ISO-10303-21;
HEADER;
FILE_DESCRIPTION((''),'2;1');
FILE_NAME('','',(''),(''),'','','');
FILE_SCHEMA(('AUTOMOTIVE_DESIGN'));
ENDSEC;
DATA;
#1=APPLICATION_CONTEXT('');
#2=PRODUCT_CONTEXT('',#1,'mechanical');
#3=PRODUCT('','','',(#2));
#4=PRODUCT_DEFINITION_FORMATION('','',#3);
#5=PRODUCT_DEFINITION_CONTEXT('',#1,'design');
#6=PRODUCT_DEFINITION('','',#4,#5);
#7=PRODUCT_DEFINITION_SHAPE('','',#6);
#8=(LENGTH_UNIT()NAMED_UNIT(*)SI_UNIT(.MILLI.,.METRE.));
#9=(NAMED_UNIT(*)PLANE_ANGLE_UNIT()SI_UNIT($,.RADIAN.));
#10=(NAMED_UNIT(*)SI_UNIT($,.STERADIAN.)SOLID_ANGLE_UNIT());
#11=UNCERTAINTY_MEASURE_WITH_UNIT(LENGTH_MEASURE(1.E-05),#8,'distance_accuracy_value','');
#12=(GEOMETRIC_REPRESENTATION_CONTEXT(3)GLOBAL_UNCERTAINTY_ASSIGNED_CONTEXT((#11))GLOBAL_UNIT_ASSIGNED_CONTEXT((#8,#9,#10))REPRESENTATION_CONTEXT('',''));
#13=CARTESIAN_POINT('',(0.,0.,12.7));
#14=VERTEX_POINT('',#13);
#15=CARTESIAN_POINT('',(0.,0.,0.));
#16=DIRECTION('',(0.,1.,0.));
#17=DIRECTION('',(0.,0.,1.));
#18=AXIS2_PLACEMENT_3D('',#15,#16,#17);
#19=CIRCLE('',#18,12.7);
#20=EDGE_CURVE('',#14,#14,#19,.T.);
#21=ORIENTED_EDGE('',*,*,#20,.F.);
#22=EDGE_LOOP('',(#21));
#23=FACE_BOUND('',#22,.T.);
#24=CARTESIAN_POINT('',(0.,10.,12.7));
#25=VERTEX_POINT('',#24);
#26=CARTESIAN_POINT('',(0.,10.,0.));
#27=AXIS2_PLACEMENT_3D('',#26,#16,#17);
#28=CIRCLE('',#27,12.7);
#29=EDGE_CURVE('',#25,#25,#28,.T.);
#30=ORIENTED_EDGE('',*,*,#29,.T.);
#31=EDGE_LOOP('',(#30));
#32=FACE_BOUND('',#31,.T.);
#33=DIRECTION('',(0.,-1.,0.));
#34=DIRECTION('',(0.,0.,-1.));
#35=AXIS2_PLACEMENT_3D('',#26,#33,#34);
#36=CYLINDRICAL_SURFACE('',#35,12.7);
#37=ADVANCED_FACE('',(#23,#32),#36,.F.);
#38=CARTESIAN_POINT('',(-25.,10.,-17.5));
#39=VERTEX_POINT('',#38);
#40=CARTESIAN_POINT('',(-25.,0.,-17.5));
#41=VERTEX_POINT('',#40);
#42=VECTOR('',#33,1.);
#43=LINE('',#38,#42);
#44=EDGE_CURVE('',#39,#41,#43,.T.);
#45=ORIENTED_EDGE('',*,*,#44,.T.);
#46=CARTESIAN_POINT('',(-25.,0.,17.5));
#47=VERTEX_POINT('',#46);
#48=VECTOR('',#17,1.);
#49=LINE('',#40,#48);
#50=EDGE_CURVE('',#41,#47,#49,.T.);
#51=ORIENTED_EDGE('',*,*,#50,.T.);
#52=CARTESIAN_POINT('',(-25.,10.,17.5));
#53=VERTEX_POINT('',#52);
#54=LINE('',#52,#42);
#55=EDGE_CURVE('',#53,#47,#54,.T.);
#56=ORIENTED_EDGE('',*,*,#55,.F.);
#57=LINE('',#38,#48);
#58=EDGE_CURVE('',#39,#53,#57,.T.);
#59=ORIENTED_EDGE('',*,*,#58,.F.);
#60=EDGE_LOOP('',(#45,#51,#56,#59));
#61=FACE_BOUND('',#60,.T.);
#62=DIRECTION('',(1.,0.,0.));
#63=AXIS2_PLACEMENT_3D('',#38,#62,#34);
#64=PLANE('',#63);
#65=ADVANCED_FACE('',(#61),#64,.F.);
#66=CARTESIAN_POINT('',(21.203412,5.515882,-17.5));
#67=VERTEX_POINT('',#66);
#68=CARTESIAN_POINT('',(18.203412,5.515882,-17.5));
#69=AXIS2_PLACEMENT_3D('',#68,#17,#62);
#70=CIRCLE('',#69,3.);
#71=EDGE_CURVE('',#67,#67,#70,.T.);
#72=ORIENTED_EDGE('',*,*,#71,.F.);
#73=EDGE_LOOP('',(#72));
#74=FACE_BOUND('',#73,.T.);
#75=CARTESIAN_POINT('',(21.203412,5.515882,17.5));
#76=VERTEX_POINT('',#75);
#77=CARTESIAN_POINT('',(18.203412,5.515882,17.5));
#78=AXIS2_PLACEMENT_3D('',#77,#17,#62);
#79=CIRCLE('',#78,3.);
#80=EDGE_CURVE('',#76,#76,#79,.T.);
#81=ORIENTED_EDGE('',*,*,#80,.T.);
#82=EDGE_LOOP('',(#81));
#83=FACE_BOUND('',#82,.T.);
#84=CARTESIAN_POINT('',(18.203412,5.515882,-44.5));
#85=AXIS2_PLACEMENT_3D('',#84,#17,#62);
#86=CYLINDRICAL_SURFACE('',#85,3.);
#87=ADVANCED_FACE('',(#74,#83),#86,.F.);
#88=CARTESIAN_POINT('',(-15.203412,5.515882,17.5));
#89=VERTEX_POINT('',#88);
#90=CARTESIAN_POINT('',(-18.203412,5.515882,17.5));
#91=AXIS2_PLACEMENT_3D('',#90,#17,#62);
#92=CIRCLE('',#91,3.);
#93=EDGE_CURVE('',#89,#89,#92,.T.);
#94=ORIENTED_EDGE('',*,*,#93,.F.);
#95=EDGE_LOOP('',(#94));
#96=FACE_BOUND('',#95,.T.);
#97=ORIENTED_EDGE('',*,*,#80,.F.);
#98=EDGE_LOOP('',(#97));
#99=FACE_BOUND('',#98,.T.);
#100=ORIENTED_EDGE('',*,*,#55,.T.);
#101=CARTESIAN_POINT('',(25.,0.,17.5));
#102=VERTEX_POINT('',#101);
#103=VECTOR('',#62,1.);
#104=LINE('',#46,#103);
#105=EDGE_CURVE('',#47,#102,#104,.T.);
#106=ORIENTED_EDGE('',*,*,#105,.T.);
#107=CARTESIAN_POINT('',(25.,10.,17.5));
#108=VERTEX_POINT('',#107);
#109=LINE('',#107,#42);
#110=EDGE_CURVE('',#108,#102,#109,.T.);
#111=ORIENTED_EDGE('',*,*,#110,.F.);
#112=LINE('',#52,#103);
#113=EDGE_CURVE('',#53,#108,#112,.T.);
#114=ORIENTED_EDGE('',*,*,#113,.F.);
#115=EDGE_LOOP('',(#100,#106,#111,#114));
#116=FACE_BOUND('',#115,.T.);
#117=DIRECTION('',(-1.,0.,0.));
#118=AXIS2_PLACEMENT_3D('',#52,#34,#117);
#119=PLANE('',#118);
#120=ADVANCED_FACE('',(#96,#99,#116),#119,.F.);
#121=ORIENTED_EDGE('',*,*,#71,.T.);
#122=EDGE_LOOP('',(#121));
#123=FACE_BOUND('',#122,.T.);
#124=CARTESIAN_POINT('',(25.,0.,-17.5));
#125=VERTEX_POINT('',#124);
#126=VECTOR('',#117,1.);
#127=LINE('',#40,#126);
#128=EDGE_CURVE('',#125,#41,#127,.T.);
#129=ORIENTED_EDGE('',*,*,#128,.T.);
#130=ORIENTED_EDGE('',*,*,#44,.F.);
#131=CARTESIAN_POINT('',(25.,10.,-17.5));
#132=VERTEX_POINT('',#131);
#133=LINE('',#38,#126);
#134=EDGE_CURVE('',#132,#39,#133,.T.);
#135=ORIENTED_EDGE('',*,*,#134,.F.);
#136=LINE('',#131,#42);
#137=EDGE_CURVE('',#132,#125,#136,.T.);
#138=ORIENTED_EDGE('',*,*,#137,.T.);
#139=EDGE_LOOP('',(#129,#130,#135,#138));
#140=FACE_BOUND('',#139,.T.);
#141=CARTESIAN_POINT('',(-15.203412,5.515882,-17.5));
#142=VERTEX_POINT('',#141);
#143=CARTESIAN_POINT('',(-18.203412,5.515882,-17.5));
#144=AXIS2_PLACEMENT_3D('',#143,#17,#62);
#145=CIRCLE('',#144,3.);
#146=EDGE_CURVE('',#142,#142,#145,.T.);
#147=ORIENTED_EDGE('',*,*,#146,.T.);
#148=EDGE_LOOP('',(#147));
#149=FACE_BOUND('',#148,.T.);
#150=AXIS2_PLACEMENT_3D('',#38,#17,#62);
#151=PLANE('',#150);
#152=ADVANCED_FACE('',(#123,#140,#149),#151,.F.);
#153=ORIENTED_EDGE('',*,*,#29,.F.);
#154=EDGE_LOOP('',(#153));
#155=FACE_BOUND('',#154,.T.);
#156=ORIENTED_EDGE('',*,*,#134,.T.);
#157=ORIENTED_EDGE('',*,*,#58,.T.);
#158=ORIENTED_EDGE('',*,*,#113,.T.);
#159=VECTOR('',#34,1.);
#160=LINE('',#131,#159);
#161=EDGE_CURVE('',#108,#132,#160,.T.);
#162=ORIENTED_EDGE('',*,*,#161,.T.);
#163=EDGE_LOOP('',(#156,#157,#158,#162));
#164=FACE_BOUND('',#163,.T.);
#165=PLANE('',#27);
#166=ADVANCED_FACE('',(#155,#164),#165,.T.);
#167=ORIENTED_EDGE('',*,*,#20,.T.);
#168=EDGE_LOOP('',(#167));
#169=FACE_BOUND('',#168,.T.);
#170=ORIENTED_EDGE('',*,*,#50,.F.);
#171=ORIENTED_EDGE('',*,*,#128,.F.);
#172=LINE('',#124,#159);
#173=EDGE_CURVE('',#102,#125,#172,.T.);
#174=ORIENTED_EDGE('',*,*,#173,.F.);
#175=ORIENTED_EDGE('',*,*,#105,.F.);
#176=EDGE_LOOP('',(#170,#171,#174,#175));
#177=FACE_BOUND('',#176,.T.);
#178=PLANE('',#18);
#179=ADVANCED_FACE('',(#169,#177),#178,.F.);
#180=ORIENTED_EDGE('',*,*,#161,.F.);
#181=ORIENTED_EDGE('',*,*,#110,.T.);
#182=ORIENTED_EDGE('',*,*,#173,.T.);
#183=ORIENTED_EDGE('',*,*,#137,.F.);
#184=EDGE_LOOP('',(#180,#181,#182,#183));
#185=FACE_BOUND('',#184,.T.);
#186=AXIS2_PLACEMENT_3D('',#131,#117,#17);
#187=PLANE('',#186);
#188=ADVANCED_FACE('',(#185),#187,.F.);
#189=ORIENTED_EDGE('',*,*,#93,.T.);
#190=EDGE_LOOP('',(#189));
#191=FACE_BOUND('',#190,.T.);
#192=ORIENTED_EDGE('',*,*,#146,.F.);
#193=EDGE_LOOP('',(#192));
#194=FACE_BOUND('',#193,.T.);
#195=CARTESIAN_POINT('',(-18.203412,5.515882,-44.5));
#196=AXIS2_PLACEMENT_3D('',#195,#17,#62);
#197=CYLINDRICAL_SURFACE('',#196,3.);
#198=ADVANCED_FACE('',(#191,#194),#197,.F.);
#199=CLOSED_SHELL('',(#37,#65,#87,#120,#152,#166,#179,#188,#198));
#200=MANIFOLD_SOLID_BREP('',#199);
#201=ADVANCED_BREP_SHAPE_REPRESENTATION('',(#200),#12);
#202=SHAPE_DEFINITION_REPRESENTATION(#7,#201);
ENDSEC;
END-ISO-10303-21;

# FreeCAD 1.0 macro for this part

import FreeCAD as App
import Part
import Sketcher

doc = App.newDocument("Part")
body = doc.addObject("PartDesign::Body", "Body")

# Sketch on XZ plane
sketch1 = body.newObject("Sketcher::SketchObject", "Sketch")
sketch1.AttachmentSupport = (doc.getObject("XZ_Plane"), [""])
sketch1.MapMode = "FlatFace"
sketch1.addGeometry([
    Part.LineSegment(App.Vector(-25, -17.5, 0), App.Vector(-25, 17.5, 0)),  # 0
    Part.LineSegment(App.Vector(-25, 17.5, 0), App.Vector(25, 17.5, 0)),  # 1
    Part.LineSegment(App.Vector(25, 17.5, 0), App.Vector(25, -17.5, 0)),  # 2
    Part.LineSegment(App.Vector(25, -17.5, 0), App.Vector(-25, -17.5, 0)),  # 3
    Part.Circle(App.Vector(0, 0, 0), App.Vector(0, 0, 1), 12.7),  # 4
], False)
sketch1.addConstraint([
    Sketcher.Constraint("Coincident", 0, 2, 1, 1),
    Sketcher.Constraint("Coincident", 1, 2, 2, 1),
    Sketcher.Constraint("Coincident", 2, 2, 3, 1),
    Sketcher.Constraint("Coincident", 3, 2, 0, 1),
    Sketcher.Constraint("Vertical", 0),
    Sketcher.Constraint("Horizontal", 1),
    Sketcher.Constraint("Vertical", 2),
    Sketcher.Constraint("Horizontal", 3),
    Sketcher.Constraint("Coincident", 4, 3, -1, 1),
    Sketcher.Constraint("Symmetric", 0, 2, 2, 2, -1, 1),
    Sketcher.Constraint("Diameter", 4, 25.4),
    Sketcher.Constraint("DistanceX", 1, 1, 1, 2, 50.0),
    Sketcher.Constraint("DistanceY", 0, 1, 0, 2, 35.0),
])
pad1 = body.newObject("PartDesign::Pad", "Pad")
pad1.Profile = sketch1
pad1.Length = 10
pad1.Reversed = True

# Sketch on XY plane
sketch2 = body.newObject("Sketcher::SketchObject", "Sketch001")
sketch2.AttachmentSupport = (doc.getObject("XY_Plane"), [""])
sketch2.MapMode = "FlatFace"
sketch2.AttachmentOffset = App.Placement(App.Vector(0, 0, 17.5), App.Rotation())
sketch2.addGeometry([
    Part.Circle(App.Vector(-18.203412, 5.515882, 0), App.Vector(0, 0, 1), 3),
    Part.Circle(App.Vector(18.203412, 5.515882, 0), App.Vector(0, 0, 1), 3),
], False)
sketch2.addConstraint([
    Sketcher.Constraint("Equal", 0, 1),
    Sketcher.Constraint("Symmetric", 0, 3, 1, 3, -2),
    Sketcher.Constraint("Diameter", 0, 6.0),
    Sketcher.Constraint("DistanceX", 0, 3, -1, 1, 18.203412),
    Sketcher.Constraint("DistanceY", -1, 1, 0, 3, 5.515882),
])
pocket1 = body.newObject("PartDesign::Pocket", "Pocket")
pocket1.Profile = sketch2
pocket1.Length = 62

doc.recompute()
